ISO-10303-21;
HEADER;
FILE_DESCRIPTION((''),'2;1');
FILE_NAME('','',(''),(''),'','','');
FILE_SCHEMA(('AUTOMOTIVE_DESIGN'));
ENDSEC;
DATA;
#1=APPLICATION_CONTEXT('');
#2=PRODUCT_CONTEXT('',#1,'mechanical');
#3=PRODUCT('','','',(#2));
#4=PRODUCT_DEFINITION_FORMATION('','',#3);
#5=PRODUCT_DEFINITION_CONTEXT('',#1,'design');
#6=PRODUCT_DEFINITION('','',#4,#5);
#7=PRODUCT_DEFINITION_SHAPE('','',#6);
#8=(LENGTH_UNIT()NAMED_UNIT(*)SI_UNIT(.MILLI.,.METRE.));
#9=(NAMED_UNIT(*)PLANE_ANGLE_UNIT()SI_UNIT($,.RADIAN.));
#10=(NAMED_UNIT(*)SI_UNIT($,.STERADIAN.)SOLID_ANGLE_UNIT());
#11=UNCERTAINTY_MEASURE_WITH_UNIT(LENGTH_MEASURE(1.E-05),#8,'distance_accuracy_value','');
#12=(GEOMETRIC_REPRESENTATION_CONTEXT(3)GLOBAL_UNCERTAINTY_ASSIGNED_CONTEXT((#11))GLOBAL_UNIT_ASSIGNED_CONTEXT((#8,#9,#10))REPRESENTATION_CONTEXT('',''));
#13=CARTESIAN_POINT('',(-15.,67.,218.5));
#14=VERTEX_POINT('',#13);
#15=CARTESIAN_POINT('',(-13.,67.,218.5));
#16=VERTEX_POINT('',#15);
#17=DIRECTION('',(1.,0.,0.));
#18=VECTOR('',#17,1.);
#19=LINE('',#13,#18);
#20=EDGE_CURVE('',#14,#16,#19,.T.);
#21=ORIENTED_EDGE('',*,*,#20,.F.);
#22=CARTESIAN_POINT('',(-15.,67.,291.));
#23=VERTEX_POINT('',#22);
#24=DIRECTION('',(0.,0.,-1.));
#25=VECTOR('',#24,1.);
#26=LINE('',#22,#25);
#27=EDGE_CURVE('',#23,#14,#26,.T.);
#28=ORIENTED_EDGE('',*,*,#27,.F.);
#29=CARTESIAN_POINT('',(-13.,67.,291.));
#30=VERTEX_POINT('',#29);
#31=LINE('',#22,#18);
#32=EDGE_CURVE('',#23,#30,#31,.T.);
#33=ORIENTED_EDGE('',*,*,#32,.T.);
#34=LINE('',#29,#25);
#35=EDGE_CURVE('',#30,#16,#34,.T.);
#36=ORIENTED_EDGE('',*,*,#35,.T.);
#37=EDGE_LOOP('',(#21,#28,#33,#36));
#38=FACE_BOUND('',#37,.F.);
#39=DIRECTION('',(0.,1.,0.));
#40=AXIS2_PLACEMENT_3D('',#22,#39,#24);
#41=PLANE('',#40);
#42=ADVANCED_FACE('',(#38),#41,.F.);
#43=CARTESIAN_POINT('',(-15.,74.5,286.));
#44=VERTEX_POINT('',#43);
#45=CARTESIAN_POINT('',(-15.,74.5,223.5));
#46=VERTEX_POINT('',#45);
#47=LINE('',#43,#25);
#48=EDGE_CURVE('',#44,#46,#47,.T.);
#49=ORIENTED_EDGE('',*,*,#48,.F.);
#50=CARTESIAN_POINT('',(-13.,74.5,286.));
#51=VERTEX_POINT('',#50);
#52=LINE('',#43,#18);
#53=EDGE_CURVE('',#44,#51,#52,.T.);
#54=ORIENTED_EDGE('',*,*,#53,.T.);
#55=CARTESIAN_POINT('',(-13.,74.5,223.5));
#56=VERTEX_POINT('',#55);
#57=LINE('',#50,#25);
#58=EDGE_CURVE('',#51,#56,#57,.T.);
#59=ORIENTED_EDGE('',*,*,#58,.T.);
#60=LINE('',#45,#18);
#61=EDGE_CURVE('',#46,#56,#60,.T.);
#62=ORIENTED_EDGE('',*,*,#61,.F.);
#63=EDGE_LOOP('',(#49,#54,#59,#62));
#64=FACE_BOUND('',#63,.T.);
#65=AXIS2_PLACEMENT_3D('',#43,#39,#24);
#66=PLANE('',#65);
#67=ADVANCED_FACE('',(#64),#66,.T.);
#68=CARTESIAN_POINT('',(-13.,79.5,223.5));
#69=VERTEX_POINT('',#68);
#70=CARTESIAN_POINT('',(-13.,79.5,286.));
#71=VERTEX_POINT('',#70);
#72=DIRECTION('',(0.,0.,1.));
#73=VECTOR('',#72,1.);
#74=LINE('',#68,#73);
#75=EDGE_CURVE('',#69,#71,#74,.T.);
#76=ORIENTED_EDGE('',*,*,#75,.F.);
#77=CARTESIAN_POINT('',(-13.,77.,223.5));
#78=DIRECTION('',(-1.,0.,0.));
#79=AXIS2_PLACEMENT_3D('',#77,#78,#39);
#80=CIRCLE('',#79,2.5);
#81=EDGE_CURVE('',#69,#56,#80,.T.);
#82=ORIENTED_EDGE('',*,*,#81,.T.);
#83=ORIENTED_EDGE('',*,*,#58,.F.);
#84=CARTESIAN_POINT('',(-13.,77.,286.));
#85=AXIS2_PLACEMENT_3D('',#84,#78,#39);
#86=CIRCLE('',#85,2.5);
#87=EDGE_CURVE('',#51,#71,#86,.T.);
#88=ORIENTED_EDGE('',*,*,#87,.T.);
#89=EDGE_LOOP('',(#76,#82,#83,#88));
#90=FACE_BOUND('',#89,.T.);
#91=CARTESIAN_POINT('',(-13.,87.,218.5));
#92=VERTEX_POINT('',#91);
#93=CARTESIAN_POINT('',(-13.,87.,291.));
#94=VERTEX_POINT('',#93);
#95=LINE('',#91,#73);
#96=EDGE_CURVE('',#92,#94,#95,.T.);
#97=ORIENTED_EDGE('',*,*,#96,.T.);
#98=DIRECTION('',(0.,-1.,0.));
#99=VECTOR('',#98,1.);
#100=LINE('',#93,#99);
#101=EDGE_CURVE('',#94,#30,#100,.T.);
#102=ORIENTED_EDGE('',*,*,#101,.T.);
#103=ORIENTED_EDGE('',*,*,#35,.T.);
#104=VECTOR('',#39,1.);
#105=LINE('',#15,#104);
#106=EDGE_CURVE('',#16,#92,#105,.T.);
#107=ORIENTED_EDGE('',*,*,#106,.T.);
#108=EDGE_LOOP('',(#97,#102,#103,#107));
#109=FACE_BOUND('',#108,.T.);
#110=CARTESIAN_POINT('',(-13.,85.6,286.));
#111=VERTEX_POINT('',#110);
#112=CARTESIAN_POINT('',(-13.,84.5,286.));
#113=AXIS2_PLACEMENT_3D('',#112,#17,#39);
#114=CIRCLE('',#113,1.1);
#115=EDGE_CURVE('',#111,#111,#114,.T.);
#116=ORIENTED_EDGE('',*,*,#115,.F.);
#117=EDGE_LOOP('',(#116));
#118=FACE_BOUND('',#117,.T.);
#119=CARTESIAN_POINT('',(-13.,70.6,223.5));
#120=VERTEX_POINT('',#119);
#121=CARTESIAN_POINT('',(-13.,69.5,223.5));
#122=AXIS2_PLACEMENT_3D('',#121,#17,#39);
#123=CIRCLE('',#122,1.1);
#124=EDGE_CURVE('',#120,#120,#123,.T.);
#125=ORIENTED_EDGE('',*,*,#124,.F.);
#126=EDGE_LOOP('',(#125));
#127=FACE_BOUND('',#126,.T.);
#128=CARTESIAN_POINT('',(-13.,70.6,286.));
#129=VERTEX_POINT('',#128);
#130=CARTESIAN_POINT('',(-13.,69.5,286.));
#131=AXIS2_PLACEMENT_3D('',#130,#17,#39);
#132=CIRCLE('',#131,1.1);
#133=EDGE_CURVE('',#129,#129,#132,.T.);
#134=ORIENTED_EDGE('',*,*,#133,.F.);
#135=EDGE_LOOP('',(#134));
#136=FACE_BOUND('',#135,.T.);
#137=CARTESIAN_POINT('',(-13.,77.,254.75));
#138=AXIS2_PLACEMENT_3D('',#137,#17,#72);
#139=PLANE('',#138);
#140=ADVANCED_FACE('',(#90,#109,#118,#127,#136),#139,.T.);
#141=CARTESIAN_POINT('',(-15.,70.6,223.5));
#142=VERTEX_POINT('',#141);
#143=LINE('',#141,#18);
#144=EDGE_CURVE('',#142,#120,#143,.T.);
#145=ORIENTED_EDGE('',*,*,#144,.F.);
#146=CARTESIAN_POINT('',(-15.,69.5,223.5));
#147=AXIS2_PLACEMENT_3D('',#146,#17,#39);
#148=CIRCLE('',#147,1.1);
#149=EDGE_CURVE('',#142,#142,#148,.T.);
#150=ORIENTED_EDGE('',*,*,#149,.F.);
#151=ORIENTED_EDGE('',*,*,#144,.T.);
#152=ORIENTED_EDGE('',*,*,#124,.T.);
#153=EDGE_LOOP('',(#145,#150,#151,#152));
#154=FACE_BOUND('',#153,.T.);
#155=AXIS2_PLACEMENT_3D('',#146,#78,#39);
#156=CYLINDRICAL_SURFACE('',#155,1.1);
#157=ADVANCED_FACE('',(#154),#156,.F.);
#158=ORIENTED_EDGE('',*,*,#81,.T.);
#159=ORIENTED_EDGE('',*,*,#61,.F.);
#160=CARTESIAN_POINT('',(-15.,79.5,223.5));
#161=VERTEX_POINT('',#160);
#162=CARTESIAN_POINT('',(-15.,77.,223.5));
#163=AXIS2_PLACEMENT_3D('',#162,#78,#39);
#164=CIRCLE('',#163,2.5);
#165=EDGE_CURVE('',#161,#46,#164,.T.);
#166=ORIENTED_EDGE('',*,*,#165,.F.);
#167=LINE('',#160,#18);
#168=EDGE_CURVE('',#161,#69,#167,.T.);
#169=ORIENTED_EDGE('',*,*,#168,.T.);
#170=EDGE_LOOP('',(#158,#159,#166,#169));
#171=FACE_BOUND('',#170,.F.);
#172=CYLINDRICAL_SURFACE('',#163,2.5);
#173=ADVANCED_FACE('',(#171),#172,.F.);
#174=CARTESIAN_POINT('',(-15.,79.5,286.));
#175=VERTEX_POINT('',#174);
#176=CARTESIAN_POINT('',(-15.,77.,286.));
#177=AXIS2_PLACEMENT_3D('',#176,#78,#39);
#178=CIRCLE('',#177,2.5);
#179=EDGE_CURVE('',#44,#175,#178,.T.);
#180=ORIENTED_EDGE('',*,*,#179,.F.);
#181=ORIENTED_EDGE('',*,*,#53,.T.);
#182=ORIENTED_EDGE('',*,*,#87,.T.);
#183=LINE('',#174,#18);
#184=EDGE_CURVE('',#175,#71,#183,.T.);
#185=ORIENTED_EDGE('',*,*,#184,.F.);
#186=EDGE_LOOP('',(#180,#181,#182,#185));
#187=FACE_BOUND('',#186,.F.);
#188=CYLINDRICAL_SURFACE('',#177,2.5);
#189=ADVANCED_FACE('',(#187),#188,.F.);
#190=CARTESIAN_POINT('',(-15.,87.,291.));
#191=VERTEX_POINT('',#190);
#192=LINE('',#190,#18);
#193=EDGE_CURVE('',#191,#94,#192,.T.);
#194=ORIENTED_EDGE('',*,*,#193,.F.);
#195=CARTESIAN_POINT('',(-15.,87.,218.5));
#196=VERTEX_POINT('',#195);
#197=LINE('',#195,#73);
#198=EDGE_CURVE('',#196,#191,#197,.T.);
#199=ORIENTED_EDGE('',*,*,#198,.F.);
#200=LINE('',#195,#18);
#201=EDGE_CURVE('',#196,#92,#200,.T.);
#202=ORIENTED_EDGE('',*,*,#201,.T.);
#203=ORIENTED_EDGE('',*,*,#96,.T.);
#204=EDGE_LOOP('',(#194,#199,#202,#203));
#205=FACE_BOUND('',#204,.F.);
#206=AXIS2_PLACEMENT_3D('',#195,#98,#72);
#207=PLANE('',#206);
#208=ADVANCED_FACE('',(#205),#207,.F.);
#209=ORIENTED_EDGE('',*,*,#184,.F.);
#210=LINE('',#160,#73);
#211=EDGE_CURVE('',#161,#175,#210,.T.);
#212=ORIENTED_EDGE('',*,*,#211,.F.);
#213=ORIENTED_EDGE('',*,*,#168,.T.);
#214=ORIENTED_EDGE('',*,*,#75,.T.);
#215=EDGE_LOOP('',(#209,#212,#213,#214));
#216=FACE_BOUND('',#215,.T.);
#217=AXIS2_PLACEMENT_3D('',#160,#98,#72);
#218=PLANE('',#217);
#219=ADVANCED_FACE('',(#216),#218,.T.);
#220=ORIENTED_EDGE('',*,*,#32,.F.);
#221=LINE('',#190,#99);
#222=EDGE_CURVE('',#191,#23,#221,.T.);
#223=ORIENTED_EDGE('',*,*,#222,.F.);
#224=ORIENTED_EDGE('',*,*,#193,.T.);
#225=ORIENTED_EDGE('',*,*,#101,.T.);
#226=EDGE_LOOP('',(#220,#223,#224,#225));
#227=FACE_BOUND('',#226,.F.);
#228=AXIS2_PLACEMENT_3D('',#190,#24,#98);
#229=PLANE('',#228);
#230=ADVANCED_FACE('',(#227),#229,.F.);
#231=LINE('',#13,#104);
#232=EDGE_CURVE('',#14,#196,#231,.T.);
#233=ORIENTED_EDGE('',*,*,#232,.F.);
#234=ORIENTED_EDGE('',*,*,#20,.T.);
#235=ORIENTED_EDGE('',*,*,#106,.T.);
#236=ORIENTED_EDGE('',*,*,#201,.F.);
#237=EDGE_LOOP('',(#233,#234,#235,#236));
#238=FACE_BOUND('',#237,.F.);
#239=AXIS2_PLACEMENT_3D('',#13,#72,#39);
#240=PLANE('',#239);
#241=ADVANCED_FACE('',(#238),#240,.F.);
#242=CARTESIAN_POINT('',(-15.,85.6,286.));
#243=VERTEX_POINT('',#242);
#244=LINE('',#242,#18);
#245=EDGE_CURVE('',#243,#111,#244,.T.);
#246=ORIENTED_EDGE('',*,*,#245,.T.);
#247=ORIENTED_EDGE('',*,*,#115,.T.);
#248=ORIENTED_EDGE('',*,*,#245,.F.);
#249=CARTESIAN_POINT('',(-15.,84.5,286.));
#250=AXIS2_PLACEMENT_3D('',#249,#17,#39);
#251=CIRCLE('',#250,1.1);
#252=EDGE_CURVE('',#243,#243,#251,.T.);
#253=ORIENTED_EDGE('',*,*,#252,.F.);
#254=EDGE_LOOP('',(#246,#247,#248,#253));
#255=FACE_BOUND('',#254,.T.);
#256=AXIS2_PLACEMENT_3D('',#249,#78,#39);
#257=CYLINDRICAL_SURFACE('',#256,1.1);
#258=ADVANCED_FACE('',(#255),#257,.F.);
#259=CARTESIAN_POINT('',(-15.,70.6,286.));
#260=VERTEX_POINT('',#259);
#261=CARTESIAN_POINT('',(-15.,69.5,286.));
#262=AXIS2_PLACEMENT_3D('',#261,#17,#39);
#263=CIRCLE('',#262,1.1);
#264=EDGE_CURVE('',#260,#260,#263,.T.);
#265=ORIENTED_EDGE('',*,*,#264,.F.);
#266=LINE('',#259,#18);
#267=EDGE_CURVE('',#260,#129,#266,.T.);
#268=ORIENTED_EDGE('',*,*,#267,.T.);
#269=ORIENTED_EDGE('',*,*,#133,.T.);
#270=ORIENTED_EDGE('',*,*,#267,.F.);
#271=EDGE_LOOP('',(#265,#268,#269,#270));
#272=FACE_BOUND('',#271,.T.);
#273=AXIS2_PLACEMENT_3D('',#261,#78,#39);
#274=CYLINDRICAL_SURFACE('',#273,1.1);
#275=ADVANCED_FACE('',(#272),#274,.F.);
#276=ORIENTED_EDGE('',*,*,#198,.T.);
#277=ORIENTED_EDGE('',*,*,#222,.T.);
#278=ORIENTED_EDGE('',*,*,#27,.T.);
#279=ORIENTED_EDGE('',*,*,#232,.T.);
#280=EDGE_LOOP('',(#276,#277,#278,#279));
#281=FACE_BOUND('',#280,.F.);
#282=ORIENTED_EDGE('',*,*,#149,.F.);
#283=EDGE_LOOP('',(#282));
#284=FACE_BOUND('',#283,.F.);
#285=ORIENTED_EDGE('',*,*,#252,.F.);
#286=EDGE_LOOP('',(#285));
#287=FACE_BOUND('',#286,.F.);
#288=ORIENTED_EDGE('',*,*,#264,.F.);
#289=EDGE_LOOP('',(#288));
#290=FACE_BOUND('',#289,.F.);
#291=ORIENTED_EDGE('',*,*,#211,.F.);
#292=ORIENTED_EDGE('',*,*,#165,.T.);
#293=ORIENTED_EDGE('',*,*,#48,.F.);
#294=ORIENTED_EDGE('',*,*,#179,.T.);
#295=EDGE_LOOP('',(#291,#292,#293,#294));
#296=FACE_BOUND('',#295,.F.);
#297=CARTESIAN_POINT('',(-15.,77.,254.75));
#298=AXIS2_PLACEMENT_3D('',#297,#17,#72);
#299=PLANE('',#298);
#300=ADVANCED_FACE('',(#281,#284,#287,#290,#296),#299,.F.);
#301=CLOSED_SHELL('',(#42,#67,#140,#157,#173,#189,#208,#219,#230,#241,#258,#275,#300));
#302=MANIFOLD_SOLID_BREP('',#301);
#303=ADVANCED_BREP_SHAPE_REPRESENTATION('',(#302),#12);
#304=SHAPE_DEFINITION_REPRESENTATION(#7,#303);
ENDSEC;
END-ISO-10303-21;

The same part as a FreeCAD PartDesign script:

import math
import FreeCAD as App
import Part
import Sketcher
from FreeCAD import Vector

doc = App.newDocument("Part")
body = doc.addObject("PartDesign::Body", "Body")

# Sketch on YZ plane
sketch1 = body.newObject("Sketcher::SketchObject", "Sketch")
sketch1.AttachmentSupport = (doc.getObject("YZ_Plane"), [""])
sketch1.MapMode = "FlatFace"
sketch1.AttachmentOffset = App.Placement(Vector(0, 0, -15), App.Rotation())
sketch1.addGeometry(Part.LineSegment(Vector(87, 218.5, 0), Vector(87, 291, 0)), False)
sketch1.addGeometry(Part.LineSegment(Vector(87, 291, 0), Vector(67, 291, 0)), False)
sketch1.addGeometry(Part.LineSegment(Vector(67, 291, 0), Vector(67, 218.5, 0)), False)
sketch1.addGeometry(Part.LineSegment(Vector(67, 218.5, 0), Vector(87, 218.5, 0)), False)
sketch1.addGeometry(Part.Circle(Vector(69.5, 223.5, 0), Vector(0, 0, 1), 1.1), False)
sketch1.addGeometry(Part.Circle(Vector(69.5, 286, 0), Vector(0, 0, 1), 1.1), False)
sketch1.addGeometry(Part.LineSegment(Vector(79.5, 286, 0), Vector(79.5, 223.5, 0)), False)
sketch1.addGeometry(Part.ArcOfCircle(Part.Circle(Vector(77, 223.5, 0), Vector(0, 0, 1), 2.5), math.radians(180), math.radians(360)), False)
sketch1.addGeometry(Part.LineSegment(Vector(74.5, 223.5, 0), Vector(74.5, 286, 0)), False)
sketch1.addGeometry(Part.ArcOfCircle(Part.Circle(Vector(77, 286, 0), Vector(0, 0, 1), 2.5), math.radians(0), math.radians(180)), False)
sketch1.addGeometry(Part.Circle(Vector(84.5, 286, 0), Vector(0, 0, 1), 1.1), False)
sketch1.addConstraint(Sketcher.Constraint("Coincident", 0, 2, 1, 1))
sketch1.addConstraint(Sketcher.Constraint("Coincident", 1, 2, 2, 1))
sketch1.addConstraint(Sketcher.Constraint("Coincident", 2, 2, 3, 1))
sketch1.addConstraint(Sketcher.Constraint("Coincident", 3, 2, 0, 1))
sketch1.addConstraint(Sketcher.Constraint("Tangent", 6, 2, 7, 2))
sketch1.addConstraint(Sketcher.Constraint("Tangent", 7, 1, 8, 1))
sketch1.addConstraint(Sketcher.Constraint("Tangent", 8, 2, 9, 2))
sketch1.addConstraint(Sketcher.Constraint("Tangent", 9, 1, 6, 1))
sketch1.addConstraint(Sketcher.Constraint("Vertical", 0))
sketch1.addConstraint(Sketcher.Constraint("Horizontal", 1))
sketch1.addConstraint(Sketcher.Constraint("Vertical", 2))
sketch1.addConstraint(Sketcher.Constraint("Horizontal", 3))
sketch1.addConstraint(Sketcher.Constraint("Vertical", 6))
sketch1.addConstraint(Sketcher.Constraint("Vertical", 8))
sketch1.addConstraint(Sketcher.Constraint("Equal", 4, 5))
sketch1.addConstraint(Sketcher.Constraint("Equal", 5, 10))
sketch1.addConstraint(Sketcher.Constraint("Horizontal", 4, 3, 7, 3))
sketch1.addConstraint(Sketcher.Constraint("Horizontal", 5, 3, 9, 3))
sketch1.addConstraint(Sketcher.Constraint("Horizontal", 9, 3, 10, 3))
sketch1.addConstraint(Sketcher.Constraint("Vertical", 4, 3, 5, 3))
sketch1.addConstraint(Sketcher.Constraint("Diameter", 4, 2.2))
sketch1.addConstraint(Sketcher.Constraint("Radius", 7, 2.5))
sketch1.addConstraint(Sketcher.Constraint("DistanceX", 1, 2, 1, 1, 20.0))
sketch1.addConstraint(Sketcher.Constraint("DistanceY", 0, 1, 0, 2, 72.5))
sketch1.addConstraint(Sketcher.Constraint("DistanceY", 6, 2, 6, 1, 62.5))
sketch1.addConstraint(Sketcher.Constraint("DistanceY", -1, 1, 5, 3, 286.0))
sketch1.addConstraint(Sketcher.Constraint("DistanceX", -1, 1, 7, 3, 77.0))
sketch1.addConstraint(Sketcher.Constraint("DistanceX", -1, 1, 0, 2, 87.0))
sketch1.addConstraint(Sketcher.Constraint("DistanceY", -1, 1, 0, 2, 291.0))
sketch1.addConstraint(Sketcher.Constraint("DistanceX", 5, 3, 10, 3, 15.0))
sketch1.addConstraint(Sketcher.Constraint("DistanceX", 4, 3, 6, 2, 10.0))
pad1 = body.newObject("PartDesign::Pad", "Pad")
pad1.Profile = sketch1
pad1.Length = 2

doc.recompute()
